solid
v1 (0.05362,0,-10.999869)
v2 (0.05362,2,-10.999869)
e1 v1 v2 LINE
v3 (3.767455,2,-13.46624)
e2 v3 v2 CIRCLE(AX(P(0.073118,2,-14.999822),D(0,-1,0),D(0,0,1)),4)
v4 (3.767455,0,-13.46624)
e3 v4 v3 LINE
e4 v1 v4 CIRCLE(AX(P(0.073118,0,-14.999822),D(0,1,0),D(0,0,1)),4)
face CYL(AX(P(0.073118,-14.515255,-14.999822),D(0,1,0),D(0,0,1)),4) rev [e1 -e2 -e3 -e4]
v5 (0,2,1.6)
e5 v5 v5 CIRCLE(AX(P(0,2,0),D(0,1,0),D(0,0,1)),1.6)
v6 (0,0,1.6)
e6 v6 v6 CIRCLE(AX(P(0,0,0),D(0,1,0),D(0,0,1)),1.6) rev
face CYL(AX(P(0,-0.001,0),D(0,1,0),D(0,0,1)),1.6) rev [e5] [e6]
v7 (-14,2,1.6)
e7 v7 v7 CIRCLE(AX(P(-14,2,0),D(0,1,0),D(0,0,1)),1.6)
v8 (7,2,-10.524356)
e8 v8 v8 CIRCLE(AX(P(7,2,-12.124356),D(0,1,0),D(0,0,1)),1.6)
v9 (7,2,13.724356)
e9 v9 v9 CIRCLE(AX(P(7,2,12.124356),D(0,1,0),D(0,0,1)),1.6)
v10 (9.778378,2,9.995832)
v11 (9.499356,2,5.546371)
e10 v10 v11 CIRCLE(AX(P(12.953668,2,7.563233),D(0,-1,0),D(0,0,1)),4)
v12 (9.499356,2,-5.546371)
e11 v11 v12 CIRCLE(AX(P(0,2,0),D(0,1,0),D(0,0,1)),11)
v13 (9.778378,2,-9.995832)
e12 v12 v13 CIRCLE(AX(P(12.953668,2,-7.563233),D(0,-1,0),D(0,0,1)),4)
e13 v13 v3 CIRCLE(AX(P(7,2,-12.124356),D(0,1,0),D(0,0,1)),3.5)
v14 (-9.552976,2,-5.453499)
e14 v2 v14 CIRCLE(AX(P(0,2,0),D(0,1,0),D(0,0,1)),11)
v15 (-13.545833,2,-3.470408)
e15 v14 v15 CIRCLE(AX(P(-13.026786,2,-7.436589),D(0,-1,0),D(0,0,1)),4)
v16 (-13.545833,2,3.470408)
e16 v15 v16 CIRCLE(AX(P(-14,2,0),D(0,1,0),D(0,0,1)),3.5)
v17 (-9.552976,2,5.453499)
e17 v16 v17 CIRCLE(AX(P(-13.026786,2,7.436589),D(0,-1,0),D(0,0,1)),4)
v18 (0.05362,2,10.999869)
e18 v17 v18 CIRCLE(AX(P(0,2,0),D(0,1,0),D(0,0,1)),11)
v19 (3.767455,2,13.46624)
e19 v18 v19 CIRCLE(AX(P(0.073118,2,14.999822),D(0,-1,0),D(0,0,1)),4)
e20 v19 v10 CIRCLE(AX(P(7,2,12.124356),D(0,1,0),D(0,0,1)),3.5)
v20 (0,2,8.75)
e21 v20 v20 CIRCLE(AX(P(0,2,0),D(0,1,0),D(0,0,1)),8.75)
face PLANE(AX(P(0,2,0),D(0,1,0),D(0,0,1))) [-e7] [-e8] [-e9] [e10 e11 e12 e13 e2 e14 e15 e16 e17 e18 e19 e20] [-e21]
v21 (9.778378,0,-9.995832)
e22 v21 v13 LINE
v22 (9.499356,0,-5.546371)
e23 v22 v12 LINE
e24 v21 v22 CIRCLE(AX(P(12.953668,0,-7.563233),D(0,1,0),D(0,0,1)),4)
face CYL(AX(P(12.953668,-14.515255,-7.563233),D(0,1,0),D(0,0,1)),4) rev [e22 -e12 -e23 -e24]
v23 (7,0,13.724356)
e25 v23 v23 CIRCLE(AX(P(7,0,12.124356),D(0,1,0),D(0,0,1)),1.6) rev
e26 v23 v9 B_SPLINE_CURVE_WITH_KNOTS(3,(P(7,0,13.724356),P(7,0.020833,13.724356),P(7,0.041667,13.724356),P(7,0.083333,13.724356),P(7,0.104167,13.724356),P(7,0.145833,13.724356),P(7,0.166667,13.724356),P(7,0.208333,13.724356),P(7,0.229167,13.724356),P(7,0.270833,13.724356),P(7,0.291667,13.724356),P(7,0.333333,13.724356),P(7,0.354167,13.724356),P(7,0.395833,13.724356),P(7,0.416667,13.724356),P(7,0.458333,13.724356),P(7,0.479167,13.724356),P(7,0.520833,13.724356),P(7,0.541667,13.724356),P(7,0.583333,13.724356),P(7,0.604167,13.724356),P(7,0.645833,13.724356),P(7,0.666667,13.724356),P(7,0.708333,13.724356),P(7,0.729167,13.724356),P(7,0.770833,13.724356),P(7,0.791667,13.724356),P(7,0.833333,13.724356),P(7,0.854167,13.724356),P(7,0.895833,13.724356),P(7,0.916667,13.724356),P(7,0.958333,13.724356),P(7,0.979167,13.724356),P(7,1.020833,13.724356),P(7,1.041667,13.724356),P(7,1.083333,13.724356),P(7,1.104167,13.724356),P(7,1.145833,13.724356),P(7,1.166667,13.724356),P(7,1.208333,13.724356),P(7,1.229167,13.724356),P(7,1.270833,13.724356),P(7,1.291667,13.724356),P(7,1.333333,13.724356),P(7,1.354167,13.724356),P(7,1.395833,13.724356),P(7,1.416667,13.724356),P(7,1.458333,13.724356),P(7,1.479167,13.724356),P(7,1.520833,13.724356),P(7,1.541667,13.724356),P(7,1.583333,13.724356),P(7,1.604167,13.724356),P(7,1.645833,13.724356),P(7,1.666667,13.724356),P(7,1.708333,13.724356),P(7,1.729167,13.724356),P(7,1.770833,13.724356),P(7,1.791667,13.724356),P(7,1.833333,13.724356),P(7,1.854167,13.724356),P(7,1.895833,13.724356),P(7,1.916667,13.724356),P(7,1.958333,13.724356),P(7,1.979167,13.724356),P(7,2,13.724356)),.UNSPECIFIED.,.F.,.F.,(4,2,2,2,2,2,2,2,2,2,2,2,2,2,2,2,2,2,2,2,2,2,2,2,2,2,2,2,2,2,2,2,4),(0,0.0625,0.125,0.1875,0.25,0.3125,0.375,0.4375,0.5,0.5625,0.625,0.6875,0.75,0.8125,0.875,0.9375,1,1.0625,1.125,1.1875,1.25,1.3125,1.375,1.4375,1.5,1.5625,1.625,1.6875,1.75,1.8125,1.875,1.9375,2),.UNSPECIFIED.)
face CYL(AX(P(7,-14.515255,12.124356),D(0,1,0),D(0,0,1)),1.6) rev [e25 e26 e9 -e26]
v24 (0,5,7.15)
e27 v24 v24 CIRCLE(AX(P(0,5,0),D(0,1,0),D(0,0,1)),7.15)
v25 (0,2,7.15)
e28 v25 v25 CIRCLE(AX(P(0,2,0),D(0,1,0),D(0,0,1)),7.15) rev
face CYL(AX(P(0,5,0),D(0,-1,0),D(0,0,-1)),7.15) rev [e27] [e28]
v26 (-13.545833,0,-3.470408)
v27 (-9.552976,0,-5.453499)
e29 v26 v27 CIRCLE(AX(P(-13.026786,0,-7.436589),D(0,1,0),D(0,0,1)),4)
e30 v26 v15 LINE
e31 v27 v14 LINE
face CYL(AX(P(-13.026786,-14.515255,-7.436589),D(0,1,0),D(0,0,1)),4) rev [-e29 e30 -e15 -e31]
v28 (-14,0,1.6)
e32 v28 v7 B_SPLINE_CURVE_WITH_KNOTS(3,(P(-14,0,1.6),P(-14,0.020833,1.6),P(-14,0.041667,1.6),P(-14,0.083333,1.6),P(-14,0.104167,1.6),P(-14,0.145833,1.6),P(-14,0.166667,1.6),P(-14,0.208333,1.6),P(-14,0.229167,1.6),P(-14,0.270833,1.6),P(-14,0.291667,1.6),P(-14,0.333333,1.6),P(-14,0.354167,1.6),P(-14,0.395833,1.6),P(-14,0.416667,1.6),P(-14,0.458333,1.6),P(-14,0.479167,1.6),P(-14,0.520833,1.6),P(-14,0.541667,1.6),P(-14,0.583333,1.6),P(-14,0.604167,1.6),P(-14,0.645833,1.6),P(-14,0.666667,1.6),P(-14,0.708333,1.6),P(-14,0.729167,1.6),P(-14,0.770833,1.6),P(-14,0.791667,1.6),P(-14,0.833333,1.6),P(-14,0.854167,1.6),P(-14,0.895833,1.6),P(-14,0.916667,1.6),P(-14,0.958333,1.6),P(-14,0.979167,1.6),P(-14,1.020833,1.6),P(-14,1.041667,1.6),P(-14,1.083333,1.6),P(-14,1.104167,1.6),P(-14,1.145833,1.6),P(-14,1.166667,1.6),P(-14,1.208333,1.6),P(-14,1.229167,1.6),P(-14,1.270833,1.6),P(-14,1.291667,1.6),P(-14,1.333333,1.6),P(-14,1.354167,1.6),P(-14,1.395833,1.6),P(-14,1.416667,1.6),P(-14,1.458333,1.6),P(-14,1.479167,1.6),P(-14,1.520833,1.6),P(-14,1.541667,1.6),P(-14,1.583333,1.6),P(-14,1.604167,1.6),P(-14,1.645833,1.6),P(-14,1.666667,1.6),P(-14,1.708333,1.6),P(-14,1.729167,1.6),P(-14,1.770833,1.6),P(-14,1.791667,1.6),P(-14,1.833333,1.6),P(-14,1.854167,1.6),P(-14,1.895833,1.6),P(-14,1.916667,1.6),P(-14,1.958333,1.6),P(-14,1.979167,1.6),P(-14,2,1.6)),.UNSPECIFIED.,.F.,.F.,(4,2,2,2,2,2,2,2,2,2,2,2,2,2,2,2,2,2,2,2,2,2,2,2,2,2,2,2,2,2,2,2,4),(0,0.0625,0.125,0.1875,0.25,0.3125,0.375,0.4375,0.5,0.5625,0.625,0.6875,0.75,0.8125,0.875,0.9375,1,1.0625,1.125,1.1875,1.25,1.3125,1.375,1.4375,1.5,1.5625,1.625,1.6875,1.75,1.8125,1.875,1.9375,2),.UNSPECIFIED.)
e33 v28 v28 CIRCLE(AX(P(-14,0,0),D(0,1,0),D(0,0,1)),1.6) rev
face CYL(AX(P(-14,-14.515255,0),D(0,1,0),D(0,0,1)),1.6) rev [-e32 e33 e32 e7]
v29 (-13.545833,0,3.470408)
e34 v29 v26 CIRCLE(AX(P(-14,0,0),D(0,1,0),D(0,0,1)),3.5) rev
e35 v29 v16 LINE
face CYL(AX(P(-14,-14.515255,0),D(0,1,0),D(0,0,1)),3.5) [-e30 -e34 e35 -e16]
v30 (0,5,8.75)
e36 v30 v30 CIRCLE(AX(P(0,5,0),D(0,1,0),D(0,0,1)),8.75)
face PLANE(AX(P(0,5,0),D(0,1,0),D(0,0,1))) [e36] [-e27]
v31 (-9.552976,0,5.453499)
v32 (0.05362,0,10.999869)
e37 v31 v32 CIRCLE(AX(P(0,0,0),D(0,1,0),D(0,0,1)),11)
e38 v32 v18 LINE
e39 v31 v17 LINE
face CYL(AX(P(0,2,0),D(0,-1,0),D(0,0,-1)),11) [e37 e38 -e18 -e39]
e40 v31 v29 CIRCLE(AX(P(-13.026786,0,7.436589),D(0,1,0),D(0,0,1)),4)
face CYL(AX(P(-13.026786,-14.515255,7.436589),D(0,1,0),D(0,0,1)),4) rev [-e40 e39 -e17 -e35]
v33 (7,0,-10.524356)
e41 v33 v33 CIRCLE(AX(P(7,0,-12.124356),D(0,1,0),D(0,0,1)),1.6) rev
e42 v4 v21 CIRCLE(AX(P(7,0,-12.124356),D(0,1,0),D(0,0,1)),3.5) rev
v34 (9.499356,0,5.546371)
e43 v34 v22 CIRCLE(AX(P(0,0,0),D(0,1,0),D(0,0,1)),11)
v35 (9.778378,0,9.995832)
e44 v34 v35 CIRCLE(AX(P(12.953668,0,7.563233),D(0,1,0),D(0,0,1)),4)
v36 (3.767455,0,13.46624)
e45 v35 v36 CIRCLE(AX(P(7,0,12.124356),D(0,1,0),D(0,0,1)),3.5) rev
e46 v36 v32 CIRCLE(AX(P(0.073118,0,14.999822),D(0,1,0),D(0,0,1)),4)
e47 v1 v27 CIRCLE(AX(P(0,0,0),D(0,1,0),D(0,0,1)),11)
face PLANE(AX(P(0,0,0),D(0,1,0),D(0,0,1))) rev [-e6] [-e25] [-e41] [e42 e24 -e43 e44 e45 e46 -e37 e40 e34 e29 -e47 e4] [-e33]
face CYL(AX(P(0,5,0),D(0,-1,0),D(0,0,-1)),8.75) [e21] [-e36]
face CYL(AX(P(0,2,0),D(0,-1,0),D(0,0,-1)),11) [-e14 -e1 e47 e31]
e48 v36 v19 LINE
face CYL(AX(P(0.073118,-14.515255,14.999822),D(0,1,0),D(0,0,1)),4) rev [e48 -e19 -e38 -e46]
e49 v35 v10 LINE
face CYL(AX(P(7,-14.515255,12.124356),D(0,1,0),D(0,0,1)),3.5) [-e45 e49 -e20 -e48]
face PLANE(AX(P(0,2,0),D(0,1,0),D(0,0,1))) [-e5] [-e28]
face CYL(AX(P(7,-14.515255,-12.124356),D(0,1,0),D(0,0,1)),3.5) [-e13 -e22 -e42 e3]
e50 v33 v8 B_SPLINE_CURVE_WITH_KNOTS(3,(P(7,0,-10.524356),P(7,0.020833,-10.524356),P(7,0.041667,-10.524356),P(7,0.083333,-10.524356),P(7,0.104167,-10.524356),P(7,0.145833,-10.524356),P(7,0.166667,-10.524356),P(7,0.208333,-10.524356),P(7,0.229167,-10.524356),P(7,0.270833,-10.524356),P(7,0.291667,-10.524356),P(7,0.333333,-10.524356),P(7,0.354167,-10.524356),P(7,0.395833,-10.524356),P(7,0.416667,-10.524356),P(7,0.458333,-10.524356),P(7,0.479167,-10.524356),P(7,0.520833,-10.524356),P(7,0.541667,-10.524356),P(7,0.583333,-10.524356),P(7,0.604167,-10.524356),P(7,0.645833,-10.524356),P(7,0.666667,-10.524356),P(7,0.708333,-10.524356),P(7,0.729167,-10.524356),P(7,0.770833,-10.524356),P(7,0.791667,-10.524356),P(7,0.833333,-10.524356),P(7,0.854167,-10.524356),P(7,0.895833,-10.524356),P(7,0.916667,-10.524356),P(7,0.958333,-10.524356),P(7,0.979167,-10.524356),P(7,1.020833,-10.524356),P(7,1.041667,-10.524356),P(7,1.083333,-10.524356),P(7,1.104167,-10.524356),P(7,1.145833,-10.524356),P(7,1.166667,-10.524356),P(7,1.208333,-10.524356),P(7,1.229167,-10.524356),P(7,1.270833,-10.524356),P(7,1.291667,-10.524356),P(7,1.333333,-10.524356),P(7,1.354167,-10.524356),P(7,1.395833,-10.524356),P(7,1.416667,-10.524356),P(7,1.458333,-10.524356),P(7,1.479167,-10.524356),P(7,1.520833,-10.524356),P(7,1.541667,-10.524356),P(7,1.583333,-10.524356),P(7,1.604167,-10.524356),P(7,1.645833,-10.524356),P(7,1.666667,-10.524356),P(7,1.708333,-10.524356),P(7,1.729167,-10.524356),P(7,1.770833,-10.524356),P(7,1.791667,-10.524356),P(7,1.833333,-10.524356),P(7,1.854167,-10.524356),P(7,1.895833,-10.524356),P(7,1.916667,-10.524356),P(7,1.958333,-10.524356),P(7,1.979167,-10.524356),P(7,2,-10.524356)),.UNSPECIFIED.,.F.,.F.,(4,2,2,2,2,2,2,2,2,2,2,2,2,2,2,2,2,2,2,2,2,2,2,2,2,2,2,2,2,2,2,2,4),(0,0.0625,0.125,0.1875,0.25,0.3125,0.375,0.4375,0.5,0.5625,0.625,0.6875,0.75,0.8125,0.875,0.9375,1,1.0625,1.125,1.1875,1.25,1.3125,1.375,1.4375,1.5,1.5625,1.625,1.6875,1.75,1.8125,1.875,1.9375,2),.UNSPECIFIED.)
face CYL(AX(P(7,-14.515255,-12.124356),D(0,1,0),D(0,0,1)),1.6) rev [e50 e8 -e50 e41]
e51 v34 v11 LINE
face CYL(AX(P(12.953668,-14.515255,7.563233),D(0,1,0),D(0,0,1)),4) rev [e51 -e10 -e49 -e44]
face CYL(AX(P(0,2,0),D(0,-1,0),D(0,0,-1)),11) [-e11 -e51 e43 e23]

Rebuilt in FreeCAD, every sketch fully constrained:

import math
import FreeCAD as App
import Part
import Sketcher
from FreeCAD import Vector
Q = App.Units.Quantity

doc = App.newDocument("Part")
body = doc.addObject("PartDesign::Body", "Body")

sketch1 = body.newObject("Sketcher::SketchObject", "Sketch")
sketch1.AttachmentSupport = (doc.getObject("XZ_Plane"), [""])
sketch1.MapMode = "FlatFace"
sketch1.addGeometry(Part.Circle(Vector(0, 0, 0), Vector(0, 0, 1), 11), False)
sketch1.addConstraint(Sketcher.Constraint("Coincident", 0, 3, -1, 1))
sketch1.addConstraint(Sketcher.Constraint("Diameter", 0, Q("22 mm")))
pad1 = body.newObject("PartDesign::Pad", "Pad")
pad1.Profile = sketch1
pad1.Length = 2
pad1.Reversed = True

sketch2 = body.newObject("Sketcher::SketchObject", "Sketch001")
sketch2.AttachmentSupport = (doc.getObject("XZ_Plane"), [""])
sketch2.MapMode = "FlatFace"
sketch2.addGeometry(Part.ArcOfCircle(Part.Circle(Vector(0, 0, 0), Vector(0, 0, 1), 11), math.radians(30.279291), math.radians(89.720709)), False)
sketch2.addGeometry(Part.ArcOfCircle(Part.Circle(Vector(0.073118, 14.999822, 0), Vector(0, 0, 1), 4), math.radians(-90.279291), math.radians(-22.544166)), False)
sketch2.addGeometry(Part.ArcOfCircle(Part.Circle(Vector(7, 12.124356, 0), Vector(0, 0, 1), 3.5), math.radians(-37.455834), math.radians(157.455834)), False)
sketch2.addGeometry(Part.ArcOfCircle(Part.Circle(Vector(12.953668, 7.563233, 0), Vector(0, 0, 1), 4), math.radians(142.544166), math.radians(210.279291)), False)
sketch2.addGeometry(Part.Circle(Vector(7, 12.124356, 0), Vector(0, 0, 1), 1.6), False)
sketch2.addGeometry(Part.ArcOfCircle(Part.Circle(Vector(0, 0, 0), Vector(0, 0, 1), 11), math.radians(-89.720709), math.radians(-30.279291)), False)
sketch2.addGeometry(Part.ArcOfCircle(Part.Circle(Vector(12.953668, -7.563233, 0), Vector(0, 0, 1), 4), math.radians(149.720709), math.radians(217.455834)), False)
sketch2.addGeometry(Part.ArcOfCircle(Part.Circle(Vector(7, -12.124356, 0), Vector(0, 0, 1), 3.5), math.radians(-157.455834), math.radians(37.455834)), False)
sketch2.addGeometry(Part.ArcOfCircle(Part.Circle(Vector(0.073118, -14.999822, 0), Vector(0, 0, 1), 4), math.radians(22.544166), math.radians(90.279291)), False)
sketch2.addGeometry(Part.Circle(Vector(7, -12.124356, 0), Vector(0, 0, 1), 1.6), False)
sketch2.addGeometry(Part.ArcOfCircle(Part.Circle(Vector(-13.026786, 7.436589, 0), Vector(0, 0, 1), 4), math.radians(-97.455834), math.radians(-29.720709)), False)
sketch2.addGeometry(Part.ArcOfCircle(Part.Circle(Vector(0, 0, 0), Vector(0, 0, 1), 11), math.radians(150.279291), math.radians(209.720709)), False)
sketch2.addGeometry(Part.ArcOfCircle(Part.Circle(Vector(-13.026786, -7.436589, 0), Vector(0, 0, 1), 4), math.radians(29.720709), math.radians(97.455834)), False)
sketch2.addGeometry(Part.ArcOfCircle(Part.Circle(Vector(-14, 0, 0), Vector(0, 0, 1), 3.5), math.radians(82.544166), math.radians(277.455834)), False)
sketch2.addGeometry(Part.Circle(Vector(-14, 0, 0), Vector(0, 0, 1), 1.6), False)
sketch2.addConstraint(Sketcher.Constraint("Tangent", 0, 2, 1, 1))
sketch2.addConstraint(Sketcher.Constraint("Tangent", 1, 2, 2, 2))
sketch2.addConstraint(Sketcher.Constraint("Tangent", 2, 1, 3, 1))
sketch2.addConstraint(Sketcher.Constraint("Tangent", 3, 2, 0, 1))
sketch2.addConstraint(Sketcher.Constraint("Tangent", 5, 2, 6, 1))
sketch2.addConstraint(Sketcher.Constraint("Tangent", 6, 2, 7, 2))
sketch2.addConstraint(Sketcher.Constraint("Tangent", 7, 1, 8, 1))
sketch2.addConstraint(Sketcher.Constraint("Tangent", 8, 2, 5, 1))
sketch2.addConstraint(Sketcher.Constraint("Tangent", 10, 2, 11, 1))
sketch2.addConstraint(Sketcher.Constraint("Tangent", 11, 2, 12, 1))
sketch2.addConstraint(Sketcher.Constraint("Tangent", 12, 2, 13, 2))
sketch2.addConstraint(Sketcher.Constraint("Tangent", 13, 1, 10, 1))
sketch2.addConstraint(Sketcher.Constraint("Coincident", 0, 3, -1, 1))
sketch2.addConstraint(Sketcher.Constraint("Coincident", 5, 3, -1, 1))
sketch2.addConstraint(Sketcher.Constraint("Coincident", 11, 3, -1, 1))
sketch2.addConstraint(Sketcher.Constraint("Coincident", 4, 3, 2, 3))
sketch2.addConstraint(Sketcher.Constraint("Coincident", 9, 3, 7, 3))
sketch2.addConstraint(Sketcher.Constraint("Coincident", 14, 3, 13, 3))
sketch2.addConstraint(Sketcher.Constraint("Equal", 1, 3))
sketch2.addConstraint(Sketcher.Constraint("Equal", 0, 5))
sketch2.addConstraint(Sketcher.Constraint("Equal", 3, 6))
sketch2.addConstraint(Sketcher.Constraint("Equal", 2, 7))
sketch2.addConstraint(Sketcher.Constraint("Equal", 6, 8))
sketch2.addConstraint(Sketcher.Constraint("Equal", 4, 9))
sketch2.addConstraint(Sketcher.Constraint("Equal", 8, 10))
sketch2.addConstraint(Sketcher.Constraint("Equal", 5, 11))
sketch2.addConstraint(Sketcher.Constraint("Equal", 10, 12))
sketch2.addConstraint(Sketcher.Constraint("Equal", 7, 13))
sketch2.addConstraint(Sketcher.Constraint("Equal", 9, 14))
sketch2.addConstraint(Sketcher.Constraint("Symmetric", 2, 3, 7, 3, -1))
sketch2.addConstraint(Sketcher.Constraint("PointOnObject", 13, 3, -1))
sketch2.addConstraint(Sketcher.Constraint("Radius", 0, Q("11 mm")))
sketch2.addConstraint(Sketcher.Constraint("Radius", 1, Q("4 mm")))
sketch2.addConstraint(Sketcher.Constraint("Diameter", 4, Q("3.2 mm")))
sketch2.addConstraint(Sketcher.Constraint("Radius", 2, Q("3.5 mm")))
sketch2.addConstraint(Sketcher.Constraint("DistanceX", -1, 1, 2, 3, Q("7 mm")))
sketch2.addConstraint(Sketcher.Constraint("DistanceX", 13, 3, -1, 1, Q("14 mm")))
sketch2.addConstraint(Sketcher.Constraint("DistanceX", 0, 2, 1, 3, Q("0.019498 mm")))
pad2 = body.newObject("PartDesign::Pad", "Pad001")
pad2.Profile = sketch2
pad2.Length = 2
pad2.Reversed = True

sketch3 = body.newObject("Sketcher::SketchObject", "Sketch002")
sketch3.AttachmentSupport = (doc.getObject("XZ_Plane"), [""])
sketch3.MapMode = "FlatFace"
sketch3.AttachmentOffset = App.Placement(Vector(0, 0, -2), App.Rotation())
sketch3.addGeometry(Part.Circle(Vector(0, 0, 0), Vector(0, 0, 1), 1.6), False)
sketch3.addConstraint(Sketcher.Constraint("Coincident", 0, 3, -1, 1))
sketch3.addConstraint(Sketcher.Constraint("Diameter", 0, Q("3.2 mm")))
pocket1 = body.newObject("PartDesign::Pocket", "Pocket")
pocket1.Profile = sketch3
pocket1.Type = "UpToFirst"
pocket1.Reversed = True

sketch4 = body.newObject("Sketcher::SketchObject", "Sketch003")
sketch4.AttachmentSupport = (doc.getObject("XZ_Plane"), [""])
sketch4.MapMode = "FlatFace"
sketch4.AttachmentOffset = App.Placement(Vector(0, 0, -2), App.Rotation())
sketch4.addGeometry(Part.Circle(Vector(0, 0, 0), Vector(0, 0, 1), 8.75), False)
sketch4.addGeometry(Part.Circle(Vector(0, 0, 0), Vector(0, 0, 1), 7.15), False)
sketch4.addConstraint(Sketcher.Constraint("Coincident", 0, 3, -1, 1))
sketch4.addConstraint(Sketcher.Constraint("Coincident", 1, 3, -1, 1))
sketch4.addConstraint(Sketcher.Constraint("Diameter", 0, Q("17.5 mm")))
sketch4.addConstraint(Sketcher.Constraint("Diameter", 1, Q("14.3 mm")))
pad3 = body.newObject("PartDesign::Pad", "Pad002")
pad3.Profile = sketch4
pad3.Length = 3
pad3.Reversed = True

doc.recompute()
